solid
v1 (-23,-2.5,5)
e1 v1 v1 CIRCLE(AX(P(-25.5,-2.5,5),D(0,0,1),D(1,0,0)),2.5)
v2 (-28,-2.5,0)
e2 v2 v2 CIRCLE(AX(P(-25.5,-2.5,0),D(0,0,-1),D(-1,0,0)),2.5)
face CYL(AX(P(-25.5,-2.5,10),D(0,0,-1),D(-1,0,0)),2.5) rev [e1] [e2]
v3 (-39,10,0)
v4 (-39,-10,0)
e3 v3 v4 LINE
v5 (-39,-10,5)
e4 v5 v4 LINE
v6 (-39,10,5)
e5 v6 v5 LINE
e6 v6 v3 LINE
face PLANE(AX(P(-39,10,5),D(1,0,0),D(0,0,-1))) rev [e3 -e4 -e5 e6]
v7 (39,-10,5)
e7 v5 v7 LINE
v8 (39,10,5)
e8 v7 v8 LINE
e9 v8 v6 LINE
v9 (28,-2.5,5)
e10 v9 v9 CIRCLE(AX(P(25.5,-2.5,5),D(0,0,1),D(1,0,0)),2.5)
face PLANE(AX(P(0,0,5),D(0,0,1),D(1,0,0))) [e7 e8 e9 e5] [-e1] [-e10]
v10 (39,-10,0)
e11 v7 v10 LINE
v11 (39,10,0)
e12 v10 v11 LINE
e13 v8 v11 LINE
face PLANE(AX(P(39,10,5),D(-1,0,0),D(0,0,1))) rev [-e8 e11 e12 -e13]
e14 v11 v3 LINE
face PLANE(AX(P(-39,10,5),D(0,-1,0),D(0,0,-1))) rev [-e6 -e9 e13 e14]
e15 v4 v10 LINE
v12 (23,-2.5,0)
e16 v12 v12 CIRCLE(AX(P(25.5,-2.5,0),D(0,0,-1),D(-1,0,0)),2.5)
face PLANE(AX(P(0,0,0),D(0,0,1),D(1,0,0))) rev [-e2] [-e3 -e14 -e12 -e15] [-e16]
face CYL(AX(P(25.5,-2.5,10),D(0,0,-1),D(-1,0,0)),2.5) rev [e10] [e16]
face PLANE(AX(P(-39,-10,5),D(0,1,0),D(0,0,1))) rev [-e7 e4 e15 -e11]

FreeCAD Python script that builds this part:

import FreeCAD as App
import Part
import Sketcher
from FreeCAD import Vector
Q = App.Units.Quantity


def add_polygon(sketch, points):
    """Adds a closed chain of lines whose ends are joined by coincident constraints."""
    first, n = sketch.GeometryCount, len(points)
    for a, b in zip(points, points[1:] + points[:1]):
        sketch.addGeometry(Part.LineSegment(App.Vector(*a, 0), App.Vector(*b, 0)), False)
    for i in range(n):
        sketch.addConstraint(Sketcher.Constraint("Coincident", first + i, 2, first + (i + 1) % n, 1))

doc = App.newDocument("Part")
body = doc.addObject("PartDesign::Body", "Body")

sketch1 = body.newObject("Sketcher::SketchObject", "Sketch")
sketch1.AttachmentSupport = (doc.getObject("XY_Plane"), [""])
sketch1.MapMode = "FlatFace"
add_polygon(sketch1, [(-39, 10), (-39, -10), (39, -10), (39, 10)])
sketch1.addConstraint(Sketcher.Constraint("Vertical", 0))
sketch1.addConstraint(Sketcher.Constraint("Horizontal", 1))
sketch1.addConstraint(Sketcher.Constraint("Vertical", 2))
sketch1.addConstraint(Sketcher.Constraint("Horizontal", 3))
sketch1.addConstraint(Sketcher.Constraint("Symmetric", 0, 2, 2, 2, -1, 1))
sketch1.addConstraint(Sketcher.Constraint("DistanceX", 1, 1, 1, 2, Q("78 mm")))
sketch1.addConstraint(Sketcher.Constraint("DistanceY", 0, 2, 0, 1, Q("20 mm")))
pad1 = body.newObject("PartDesign::Pad", "Pad")
pad1.Profile = sketch1
pad1.Length = 5

sketch2 = body.newObject("Sketcher::SketchObject", "Sketch001")
sketch2.AttachmentSupport = (doc.getObject("XY_Plane"), [""])
sketch2.MapMode = "FlatFace"
sketch2.addGeometry(Part.Circle(Vector(25.5, -2.5, 0), Vector(0, 0, 1), 2.5), False)
sketch2.addGeometry(Part.Circle(Vector(-25.5, -2.5, 0), Vector(0, 0, 1), 2.5), False)
sketch2.addConstraint(Sketcher.Constraint("Equal", 0, 1))
sketch2.addConstraint(Sketcher.Constraint("Symmetric", 0, 3, 1, 3, -2))
sketch2.addConstraint(Sketcher.Constraint("Diameter", 0, Q("5 mm")))
sketch2.addConstraint(Sketcher.Constraint("DistanceX", 1, 3, 0, 3, Q("51 mm")))
sketch2.addConstraint(Sketcher.Constraint("DistanceY", 0, 3, -1, 1, Q("2.5 mm")))
pocket1 = body.newObject("PartDesign::Pocket", "Pocket")
pocket1.Profile = sketch2
pocket1.Length = 10
pocket1.Reversed = True

doc.recompute()
